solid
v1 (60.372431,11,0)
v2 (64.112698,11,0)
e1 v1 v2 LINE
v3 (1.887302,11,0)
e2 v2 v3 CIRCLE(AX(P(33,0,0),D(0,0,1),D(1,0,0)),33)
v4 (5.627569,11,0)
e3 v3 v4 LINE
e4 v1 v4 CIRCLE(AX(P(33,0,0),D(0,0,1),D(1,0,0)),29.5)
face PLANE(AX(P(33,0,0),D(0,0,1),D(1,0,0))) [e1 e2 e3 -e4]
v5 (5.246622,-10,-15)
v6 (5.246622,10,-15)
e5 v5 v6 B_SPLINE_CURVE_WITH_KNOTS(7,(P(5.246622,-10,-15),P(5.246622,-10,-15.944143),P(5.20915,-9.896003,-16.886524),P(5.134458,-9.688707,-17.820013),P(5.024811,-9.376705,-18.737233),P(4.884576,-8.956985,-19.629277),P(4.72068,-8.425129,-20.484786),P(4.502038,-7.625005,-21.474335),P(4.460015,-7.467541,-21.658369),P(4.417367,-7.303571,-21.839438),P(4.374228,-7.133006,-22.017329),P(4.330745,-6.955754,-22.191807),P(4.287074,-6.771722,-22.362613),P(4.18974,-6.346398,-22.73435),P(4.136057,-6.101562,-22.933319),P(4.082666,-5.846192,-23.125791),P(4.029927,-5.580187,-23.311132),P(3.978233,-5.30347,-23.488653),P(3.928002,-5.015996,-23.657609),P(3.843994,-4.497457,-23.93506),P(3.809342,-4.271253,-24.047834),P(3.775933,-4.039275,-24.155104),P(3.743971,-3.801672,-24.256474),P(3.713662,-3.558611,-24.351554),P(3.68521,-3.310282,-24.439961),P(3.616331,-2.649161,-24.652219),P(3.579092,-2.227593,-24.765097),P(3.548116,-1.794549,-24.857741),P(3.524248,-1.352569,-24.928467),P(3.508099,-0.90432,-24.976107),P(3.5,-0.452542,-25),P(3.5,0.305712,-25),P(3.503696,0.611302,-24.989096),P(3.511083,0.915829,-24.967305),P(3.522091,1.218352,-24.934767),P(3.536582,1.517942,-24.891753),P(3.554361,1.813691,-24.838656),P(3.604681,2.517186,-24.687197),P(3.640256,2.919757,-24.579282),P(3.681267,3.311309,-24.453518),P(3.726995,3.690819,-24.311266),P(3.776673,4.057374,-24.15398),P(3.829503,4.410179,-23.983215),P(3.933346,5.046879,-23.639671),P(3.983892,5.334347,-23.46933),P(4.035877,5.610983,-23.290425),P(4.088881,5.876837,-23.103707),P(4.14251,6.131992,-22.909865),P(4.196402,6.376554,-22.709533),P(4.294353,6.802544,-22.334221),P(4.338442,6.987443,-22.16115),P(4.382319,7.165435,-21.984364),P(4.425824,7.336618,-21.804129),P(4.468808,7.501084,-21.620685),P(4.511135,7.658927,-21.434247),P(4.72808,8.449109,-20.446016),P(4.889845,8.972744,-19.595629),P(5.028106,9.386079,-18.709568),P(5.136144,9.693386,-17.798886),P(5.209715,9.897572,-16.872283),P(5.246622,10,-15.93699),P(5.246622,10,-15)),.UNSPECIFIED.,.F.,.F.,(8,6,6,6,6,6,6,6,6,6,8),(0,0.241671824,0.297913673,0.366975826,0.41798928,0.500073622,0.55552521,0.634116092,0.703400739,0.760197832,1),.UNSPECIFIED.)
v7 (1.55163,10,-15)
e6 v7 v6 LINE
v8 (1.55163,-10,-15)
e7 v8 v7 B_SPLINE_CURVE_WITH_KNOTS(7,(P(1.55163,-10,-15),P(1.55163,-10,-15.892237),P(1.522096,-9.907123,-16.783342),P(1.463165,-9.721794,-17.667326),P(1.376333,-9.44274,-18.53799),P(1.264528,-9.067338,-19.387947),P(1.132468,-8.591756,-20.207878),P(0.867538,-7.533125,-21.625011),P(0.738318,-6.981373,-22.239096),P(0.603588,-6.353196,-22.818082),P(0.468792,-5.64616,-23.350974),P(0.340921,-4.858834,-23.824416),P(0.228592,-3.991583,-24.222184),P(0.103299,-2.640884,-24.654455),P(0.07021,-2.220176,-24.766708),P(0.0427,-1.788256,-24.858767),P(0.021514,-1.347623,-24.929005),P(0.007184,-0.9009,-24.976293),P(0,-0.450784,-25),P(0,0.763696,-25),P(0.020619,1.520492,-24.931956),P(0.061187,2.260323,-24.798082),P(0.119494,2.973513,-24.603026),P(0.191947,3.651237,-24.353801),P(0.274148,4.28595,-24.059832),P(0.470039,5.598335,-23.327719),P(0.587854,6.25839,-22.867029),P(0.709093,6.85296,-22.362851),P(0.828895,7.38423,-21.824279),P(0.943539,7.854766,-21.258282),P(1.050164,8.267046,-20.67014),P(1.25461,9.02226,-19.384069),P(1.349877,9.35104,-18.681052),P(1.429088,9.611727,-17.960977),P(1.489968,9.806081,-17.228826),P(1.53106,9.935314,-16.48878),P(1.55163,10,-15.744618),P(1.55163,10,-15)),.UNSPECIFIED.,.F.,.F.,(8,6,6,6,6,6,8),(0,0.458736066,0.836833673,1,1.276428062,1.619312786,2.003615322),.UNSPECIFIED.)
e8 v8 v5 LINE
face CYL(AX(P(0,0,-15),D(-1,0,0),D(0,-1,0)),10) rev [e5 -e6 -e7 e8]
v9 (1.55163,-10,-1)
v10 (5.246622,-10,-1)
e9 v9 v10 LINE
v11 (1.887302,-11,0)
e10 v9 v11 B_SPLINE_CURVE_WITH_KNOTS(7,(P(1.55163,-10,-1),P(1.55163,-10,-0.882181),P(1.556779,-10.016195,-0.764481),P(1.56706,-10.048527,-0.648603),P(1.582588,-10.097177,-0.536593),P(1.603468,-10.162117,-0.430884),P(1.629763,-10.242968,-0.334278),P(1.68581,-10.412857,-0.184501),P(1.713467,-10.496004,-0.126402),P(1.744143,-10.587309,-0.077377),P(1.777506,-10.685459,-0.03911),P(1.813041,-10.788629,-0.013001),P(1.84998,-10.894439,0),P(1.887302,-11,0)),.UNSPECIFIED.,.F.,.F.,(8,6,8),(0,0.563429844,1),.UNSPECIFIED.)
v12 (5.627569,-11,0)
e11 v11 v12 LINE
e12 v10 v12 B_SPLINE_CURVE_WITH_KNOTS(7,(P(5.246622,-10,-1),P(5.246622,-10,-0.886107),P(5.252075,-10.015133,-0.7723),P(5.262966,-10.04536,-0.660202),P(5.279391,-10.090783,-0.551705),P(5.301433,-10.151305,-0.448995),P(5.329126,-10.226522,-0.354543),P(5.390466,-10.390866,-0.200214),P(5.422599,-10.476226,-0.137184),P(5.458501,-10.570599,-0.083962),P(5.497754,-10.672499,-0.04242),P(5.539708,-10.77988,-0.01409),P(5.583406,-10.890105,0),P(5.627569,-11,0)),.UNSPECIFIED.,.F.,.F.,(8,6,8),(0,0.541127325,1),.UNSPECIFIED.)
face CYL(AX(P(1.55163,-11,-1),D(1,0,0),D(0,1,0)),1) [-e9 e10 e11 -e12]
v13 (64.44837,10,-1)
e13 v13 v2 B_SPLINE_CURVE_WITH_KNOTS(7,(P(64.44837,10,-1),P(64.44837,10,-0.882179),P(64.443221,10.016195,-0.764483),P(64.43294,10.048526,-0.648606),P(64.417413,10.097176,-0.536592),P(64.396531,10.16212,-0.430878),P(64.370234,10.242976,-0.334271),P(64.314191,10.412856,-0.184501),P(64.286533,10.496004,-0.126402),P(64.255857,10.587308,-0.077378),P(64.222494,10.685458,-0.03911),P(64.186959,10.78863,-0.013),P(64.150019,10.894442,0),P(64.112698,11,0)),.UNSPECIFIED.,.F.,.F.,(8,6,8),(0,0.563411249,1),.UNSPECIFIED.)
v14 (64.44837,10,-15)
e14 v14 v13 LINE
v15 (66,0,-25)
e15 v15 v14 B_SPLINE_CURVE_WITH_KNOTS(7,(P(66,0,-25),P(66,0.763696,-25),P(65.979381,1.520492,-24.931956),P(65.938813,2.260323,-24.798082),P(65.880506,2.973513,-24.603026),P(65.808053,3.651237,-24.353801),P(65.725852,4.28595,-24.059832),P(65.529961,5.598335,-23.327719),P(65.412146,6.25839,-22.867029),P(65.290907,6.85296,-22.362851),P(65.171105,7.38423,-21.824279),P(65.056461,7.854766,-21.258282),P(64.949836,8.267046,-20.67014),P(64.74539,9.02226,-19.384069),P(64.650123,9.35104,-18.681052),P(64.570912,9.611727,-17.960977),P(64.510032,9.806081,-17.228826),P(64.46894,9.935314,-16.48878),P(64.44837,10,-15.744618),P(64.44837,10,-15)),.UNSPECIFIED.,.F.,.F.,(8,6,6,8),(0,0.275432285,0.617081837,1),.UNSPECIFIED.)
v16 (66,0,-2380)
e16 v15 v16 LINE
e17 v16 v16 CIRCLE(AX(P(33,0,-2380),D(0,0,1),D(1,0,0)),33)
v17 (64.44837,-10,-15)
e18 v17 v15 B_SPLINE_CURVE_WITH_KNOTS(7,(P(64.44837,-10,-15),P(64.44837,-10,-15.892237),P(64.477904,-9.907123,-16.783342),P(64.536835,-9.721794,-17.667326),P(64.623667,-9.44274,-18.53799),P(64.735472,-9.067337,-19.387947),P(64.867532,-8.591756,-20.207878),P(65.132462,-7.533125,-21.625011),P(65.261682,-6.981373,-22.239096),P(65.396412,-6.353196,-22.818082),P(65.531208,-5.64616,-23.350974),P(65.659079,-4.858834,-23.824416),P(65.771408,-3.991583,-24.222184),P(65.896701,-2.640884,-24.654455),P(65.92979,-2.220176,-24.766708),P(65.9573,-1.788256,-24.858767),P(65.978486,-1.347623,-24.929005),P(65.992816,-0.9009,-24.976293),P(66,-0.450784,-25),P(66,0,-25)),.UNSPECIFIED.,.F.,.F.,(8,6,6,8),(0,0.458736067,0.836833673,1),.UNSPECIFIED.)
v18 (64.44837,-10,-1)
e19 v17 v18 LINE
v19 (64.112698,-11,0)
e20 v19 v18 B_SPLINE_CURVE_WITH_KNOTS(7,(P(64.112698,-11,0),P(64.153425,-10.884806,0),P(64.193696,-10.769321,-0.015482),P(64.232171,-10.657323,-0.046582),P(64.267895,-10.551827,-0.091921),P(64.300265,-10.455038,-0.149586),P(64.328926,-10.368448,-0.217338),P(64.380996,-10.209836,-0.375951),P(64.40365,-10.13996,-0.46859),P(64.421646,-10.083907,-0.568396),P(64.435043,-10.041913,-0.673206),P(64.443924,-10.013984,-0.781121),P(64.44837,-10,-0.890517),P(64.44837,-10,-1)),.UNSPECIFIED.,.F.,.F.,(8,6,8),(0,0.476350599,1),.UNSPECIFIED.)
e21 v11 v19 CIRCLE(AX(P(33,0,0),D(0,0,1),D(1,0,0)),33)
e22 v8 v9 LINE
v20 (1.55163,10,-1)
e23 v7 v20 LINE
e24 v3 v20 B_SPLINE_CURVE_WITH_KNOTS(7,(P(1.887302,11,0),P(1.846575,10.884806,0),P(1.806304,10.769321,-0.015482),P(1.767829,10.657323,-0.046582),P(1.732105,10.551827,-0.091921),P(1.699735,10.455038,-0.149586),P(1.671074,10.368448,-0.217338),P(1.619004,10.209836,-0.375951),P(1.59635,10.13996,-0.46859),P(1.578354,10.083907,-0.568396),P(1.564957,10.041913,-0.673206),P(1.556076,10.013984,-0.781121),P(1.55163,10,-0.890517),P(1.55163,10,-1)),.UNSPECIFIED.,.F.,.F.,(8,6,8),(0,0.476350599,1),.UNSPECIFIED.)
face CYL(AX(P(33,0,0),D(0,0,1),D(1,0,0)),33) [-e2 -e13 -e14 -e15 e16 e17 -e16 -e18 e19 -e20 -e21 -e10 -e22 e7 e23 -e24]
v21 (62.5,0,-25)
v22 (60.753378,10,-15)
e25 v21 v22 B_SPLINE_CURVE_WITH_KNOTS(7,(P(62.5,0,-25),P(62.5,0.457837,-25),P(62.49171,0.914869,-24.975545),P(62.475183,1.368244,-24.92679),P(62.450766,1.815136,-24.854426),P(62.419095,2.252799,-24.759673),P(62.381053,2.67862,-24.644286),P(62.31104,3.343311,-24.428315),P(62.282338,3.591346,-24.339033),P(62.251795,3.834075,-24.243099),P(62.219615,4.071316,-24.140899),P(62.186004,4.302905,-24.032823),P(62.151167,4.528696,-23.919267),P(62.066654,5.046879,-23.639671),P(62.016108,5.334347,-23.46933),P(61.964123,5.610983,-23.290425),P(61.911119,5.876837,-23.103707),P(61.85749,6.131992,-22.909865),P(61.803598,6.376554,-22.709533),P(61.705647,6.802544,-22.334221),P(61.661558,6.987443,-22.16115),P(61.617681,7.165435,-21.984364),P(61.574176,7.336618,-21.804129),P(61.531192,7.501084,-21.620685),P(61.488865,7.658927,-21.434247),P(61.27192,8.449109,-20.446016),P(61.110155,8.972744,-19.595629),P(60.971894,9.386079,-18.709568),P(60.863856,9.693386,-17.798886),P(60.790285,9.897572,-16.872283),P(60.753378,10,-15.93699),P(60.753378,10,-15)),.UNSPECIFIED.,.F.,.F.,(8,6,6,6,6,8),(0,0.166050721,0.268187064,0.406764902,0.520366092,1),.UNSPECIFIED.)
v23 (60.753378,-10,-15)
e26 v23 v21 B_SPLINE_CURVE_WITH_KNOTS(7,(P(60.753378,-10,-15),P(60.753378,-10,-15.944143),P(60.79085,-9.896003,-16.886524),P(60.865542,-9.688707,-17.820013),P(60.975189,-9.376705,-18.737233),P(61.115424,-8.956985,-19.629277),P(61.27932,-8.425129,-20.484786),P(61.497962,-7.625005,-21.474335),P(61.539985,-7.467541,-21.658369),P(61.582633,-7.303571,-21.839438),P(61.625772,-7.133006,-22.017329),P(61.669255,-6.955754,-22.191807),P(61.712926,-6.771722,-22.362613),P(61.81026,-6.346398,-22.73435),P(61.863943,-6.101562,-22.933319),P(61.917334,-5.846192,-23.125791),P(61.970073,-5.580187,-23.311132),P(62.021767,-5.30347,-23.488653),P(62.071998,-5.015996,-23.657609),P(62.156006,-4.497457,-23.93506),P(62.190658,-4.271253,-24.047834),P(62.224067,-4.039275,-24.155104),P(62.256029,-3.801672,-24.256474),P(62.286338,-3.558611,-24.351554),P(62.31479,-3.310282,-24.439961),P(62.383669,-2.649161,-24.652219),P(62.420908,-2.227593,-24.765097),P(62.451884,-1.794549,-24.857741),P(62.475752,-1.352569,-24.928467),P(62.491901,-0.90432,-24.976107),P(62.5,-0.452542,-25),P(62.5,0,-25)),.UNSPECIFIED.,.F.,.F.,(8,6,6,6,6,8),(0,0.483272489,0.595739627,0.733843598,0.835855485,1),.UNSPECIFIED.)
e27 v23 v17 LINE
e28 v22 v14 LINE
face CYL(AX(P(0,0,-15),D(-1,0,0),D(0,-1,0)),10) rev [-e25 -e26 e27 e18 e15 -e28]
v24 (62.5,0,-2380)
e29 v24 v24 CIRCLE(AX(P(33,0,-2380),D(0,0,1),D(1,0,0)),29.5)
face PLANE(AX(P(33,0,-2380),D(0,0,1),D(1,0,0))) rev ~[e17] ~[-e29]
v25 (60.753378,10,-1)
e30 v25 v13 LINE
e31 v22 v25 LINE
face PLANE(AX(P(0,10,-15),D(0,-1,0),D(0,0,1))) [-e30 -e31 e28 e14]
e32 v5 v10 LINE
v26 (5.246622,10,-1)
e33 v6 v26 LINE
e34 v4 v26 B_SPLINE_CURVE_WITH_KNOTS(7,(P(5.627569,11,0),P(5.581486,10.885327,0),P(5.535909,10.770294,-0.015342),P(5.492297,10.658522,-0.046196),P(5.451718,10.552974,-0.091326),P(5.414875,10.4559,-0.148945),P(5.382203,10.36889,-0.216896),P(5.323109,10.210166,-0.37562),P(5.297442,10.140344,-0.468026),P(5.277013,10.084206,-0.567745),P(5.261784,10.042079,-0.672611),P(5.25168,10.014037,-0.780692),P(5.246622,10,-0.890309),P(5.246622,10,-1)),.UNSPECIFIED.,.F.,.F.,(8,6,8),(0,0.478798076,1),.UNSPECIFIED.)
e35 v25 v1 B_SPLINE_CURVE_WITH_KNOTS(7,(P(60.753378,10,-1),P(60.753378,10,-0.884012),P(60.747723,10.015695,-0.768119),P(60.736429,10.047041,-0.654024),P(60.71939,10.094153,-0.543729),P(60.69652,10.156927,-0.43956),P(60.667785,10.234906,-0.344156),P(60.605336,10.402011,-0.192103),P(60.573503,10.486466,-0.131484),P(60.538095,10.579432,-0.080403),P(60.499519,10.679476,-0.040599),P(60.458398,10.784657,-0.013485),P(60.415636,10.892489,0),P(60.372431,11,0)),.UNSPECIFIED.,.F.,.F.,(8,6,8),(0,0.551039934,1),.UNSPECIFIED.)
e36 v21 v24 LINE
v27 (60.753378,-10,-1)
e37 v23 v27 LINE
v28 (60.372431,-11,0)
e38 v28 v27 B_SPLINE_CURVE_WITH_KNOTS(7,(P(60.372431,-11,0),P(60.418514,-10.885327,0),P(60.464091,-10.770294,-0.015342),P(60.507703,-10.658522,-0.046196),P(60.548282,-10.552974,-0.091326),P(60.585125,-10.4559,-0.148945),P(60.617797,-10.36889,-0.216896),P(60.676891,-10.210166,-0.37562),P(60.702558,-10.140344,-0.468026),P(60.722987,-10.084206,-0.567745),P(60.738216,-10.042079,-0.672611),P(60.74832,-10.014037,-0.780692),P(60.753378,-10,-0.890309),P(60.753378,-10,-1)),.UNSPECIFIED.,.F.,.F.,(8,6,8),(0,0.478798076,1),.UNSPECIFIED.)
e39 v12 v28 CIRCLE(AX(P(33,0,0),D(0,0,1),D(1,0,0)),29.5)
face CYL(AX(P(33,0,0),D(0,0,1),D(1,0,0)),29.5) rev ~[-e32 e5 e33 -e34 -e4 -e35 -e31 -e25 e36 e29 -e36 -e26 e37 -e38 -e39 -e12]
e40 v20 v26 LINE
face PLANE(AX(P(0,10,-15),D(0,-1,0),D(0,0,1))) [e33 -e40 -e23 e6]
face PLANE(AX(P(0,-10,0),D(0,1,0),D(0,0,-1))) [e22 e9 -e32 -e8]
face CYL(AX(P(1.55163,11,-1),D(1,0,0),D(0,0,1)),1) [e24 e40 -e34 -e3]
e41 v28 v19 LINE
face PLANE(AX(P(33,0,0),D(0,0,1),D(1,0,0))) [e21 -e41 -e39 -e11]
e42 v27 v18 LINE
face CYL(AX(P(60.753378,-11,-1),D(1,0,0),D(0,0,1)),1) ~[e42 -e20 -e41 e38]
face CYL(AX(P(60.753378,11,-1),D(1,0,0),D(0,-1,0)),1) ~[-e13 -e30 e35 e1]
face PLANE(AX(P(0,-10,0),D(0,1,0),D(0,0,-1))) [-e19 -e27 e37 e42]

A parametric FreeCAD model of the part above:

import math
import FreeCAD as App
import Part
import Sketcher
from FreeCAD import Vector


def edges_at(feature, points):
    """Names of the edges that pass closest to the given points."""
    edges = feature.Shape.Edges
    near = lambda p: min(range(len(edges)), key=lambda i: edges[i].distToShape(Part.Vertex(*p))[0])
    return sorted({f"Edge{near(p) + 1}" for p in points})

doc = App.newDocument("Part")
body = doc.addObject("PartDesign::Body", "Body")

sketch1 = body.newObject("Sketcher::SketchObject", "Sketch")
sketch1.AttachmentSupport = (doc.getObject("XY_Plane"), [""])
sketch1.MapMode = "FlatFace"
sketch1.addGeometry([
    Part.Circle(Vector(33, 0, 0), Vector(0, 0, 1), 33),
    Part.Circle(Vector(33, 0, 0), Vector(0, 0, 1), 30),
], False)
sketch1.addConstraint([
    Sketcher.Constraint("Coincident", 1, 3, 0, 3),
    Sketcher.Constraint("PointOnObject", 0, 3, -1),
    Sketcher.Constraint("Diameter", 0, 66.0),
    Sketcher.Constraint("Diameter", 1, 59.0),
    Sketcher.Constraint("DistanceX", -1, 1, 0, 3, 33.0),
])
pad1 = body.newObject("PartDesign::Pad", "Pad")
pad1.Profile = sketch1
pad1.Length = 2380
pad1.Reversed = True

sketch2 = body.newObject("Sketcher::SketchObject", "Sketch001")
sketch2.AttachmentSupport = (doc.getObject("YZ_Plane"), [""])
sketch2.MapMode = "FlatFace"
sketch2.addGeometry([
    Part.LineSegment(Vector(10, 0, 0), Vector(-10, 0, 0)),
    Part.LineSegment(Vector(-10, 0, 0), Vector(-10, -15, 0)),
    Part.ArcOfCircle(Part.Circle(Vector(0, -15, 0), Vector(0, 0, 1), 10), math.radians(180), math.radians(360)),
    Part.LineSegment(Vector(10, -15, 0), Vector(10, 0, 0)),
], False)
sketch2.addConstraint([
    Sketcher.Constraint("Coincident", 0, 2, 1, 1),
    Sketcher.Constraint("Tangent", 1, 2, 2, 1),
    Sketcher.Constraint("Tangent", 2, 2, 3, 1),
    Sketcher.Constraint("Coincident", 3, 2, 0, 1),
    Sketcher.Constraint("Horizontal", 0),
    Sketcher.Constraint("Vertical", 1),
    Sketcher.Constraint("Vertical", 3),
    Sketcher.Constraint("Symmetric", 0, 2, 3, 2, -1, 1),
    Sketcher.Constraint("Radius", 2, 10.0),
    Sketcher.Constraint("DistanceY", 1, 2, 1, 1, 15.0),
])
pocket1 = body.newObject("PartDesign::Pocket", "Pocket")
pocket1.Profile = sketch2
pocket1.Type = "ThroughAll"
pocket1.Reversed = True
doc.recompute()

fillet = body.newObject("PartDesign::Fillet", "Fillet")
fillet.Base = (pocket1, edges_at(pocket1, [
    (3.399, 10, 0),
    (62.601, 10, 0),
    (3.399, -10, 0),
    (62.601, -10, 0),
]))
fillet.Radius = 1

doc.recompute()
